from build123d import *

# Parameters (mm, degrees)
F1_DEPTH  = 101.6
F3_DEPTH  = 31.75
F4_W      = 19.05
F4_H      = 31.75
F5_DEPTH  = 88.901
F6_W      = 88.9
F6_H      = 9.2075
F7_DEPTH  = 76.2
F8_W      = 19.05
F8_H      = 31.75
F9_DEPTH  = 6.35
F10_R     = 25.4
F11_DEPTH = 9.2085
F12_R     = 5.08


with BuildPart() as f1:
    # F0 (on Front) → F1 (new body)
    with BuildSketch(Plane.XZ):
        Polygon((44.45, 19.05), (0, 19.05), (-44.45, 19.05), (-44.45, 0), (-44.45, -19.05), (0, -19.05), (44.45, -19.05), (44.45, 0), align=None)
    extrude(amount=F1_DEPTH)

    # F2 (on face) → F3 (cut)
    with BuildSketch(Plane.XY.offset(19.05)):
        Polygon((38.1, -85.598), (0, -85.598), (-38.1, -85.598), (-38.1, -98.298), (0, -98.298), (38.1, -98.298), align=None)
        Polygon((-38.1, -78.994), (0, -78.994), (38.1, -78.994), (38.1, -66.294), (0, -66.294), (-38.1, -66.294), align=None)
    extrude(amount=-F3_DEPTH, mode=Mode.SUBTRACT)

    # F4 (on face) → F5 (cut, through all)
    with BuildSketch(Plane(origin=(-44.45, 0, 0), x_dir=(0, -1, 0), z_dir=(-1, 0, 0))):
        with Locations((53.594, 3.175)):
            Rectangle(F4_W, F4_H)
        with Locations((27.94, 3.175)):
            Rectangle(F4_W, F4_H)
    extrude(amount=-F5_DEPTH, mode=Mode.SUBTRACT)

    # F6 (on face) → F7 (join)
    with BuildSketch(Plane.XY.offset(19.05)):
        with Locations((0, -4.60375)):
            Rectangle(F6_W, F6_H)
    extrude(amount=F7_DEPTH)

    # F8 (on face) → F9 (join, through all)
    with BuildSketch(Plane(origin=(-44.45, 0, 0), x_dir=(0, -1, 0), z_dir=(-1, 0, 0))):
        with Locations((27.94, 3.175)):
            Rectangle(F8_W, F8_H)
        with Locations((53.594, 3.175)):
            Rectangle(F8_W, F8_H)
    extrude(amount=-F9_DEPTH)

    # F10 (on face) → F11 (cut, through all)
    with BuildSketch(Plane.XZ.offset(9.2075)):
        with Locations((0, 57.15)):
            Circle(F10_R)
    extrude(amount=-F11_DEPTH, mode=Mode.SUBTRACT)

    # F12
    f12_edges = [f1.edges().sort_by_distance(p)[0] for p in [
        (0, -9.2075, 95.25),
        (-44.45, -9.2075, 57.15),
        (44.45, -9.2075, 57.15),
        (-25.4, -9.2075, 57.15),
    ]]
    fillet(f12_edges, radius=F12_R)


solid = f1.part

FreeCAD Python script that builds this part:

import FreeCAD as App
import Part
import Sketcher
Q = App.Units.Quantity


def edges_at(feature, points):
    """Names of the edges that pass closest to the given points."""
    edges = feature.Shape.Edges
    near = lambda p: min(range(len(edges)), key=lambda i: edges[i].distToShape(Part.Vertex(*p))[0])
    return sorted({f"Edge{near(p) + 1}" for p in points})

doc = App.newDocument("Part")
body = doc.addObject("PartDesign::Body", "Body")

# Sketch on XZ plane
sketch1 = body.newObject("Sketcher::SketchObject", "Sketch")
sketch1.AttachmentSupport = (doc.getObject("XZ_Plane"), [""])
sketch1.MapMode = "FlatFace"
sketch1.addGeometry([
    Part.LineSegment(App.Vector(44, 19, 0), App.Vector(-44, 19, 0)),
    Part.LineSegment(App.Vector(-44, 19, 0), App.Vector(-44, -19, 0)),
    Part.LineSegment(App.Vector(-44, -19, 0), App.Vector(44, -19, 0)),
    Part.LineSegment(App.Vector(44, -19, 0), App.Vector(44, 19, 0)),
], False)
sketch1.addConstraint([
    Sketcher.Constraint("Coincident", 0, 2, 1, 1),
    Sketcher.Constraint("Coincident", 1, 2, 2, 1),
    Sketcher.Constraint("Coincident", 2, 2, 3, 1),
    Sketcher.Constraint("Coincident", 3, 2, 0, 1),
    Sketcher.Constraint("Horizontal", 0),
    Sketcher.Constraint("Vertical", 1),
    Sketcher.Constraint("Horizontal", 2),
    Sketcher.Constraint("Vertical", 3),
    Sketcher.Constraint("Symmetric", 0, 2, 2, 2, -1, 1),
    Sketcher.Constraint("DistanceX", 0, 2, 0, 1, Q("3.5 in")),
    Sketcher.Constraint("DistanceY", 1, 2, 1, 1, Q("1.5 in")),
])
pad1 = body.newObject("PartDesign::Pad", "Pad")
pad1.Profile = sketch1
pad1.Length = Q("4 in")

# Sketch on XY plane
sketch2 = body.newObject("Sketcher::SketchObject", "Sketch001")
sketch2.AttachmentSupport = (doc.getObject("XY_Plane"), [""])
sketch2.MapMode = "FlatFace"
sketch2.AttachmentOffset = App.Placement(App.Vector(0, 0, 0.75 * 25.4), App.Rotation())
sketch2.addGeometry([
    Part.LineSegment(App.Vector(38, -86, 0), App.Vector(-38, -86, 0)),  # 0
    Part.LineSegment(App.Vector(-38, -86, 0), App.Vector(-38, -98, 0)),  # 1
    Part.LineSegment(App.Vector(-38, -98, 0), App.Vector(38, -98, 0)),  # 2
    Part.LineSegment(App.Vector(38, -98, 0), App.Vector(38, -86, 0)),  # 3
    Part.LineSegment(App.Vector(-38, -79, 0), App.Vector(38, -79, 0)),  # 4
    Part.LineSegment(App.Vector(38, -79, 0), App.Vector(38, -66, 0)),  # 5
    Part.LineSegment(App.Vector(38, -66, 0), App.Vector(-38, -66, 0)),  # 6
    Part.LineSegment(App.Vector(-38, -66, 0), App.Vector(-38, -79, 0)),  # 7
], False)
sketch2.addConstraint([
    Sketcher.Constraint("Coincident", 0, 2, 1, 1),
    Sketcher.Constraint("Coincident", 1, 2, 2, 1),
    Sketcher.Constraint("Coincident", 2, 2, 3, 1),
    Sketcher.Constraint("Coincident", 3, 2, 0, 1),
    Sketcher.Constraint("Coincident", 4, 2, 5, 1),
    Sketcher.Constraint("Coincident", 5, 2, 6, 1),
    Sketcher.Constraint("Coincident", 6, 2, 7, 1),
    Sketcher.Constraint("Coincident", 7, 2, 4, 1),
    Sketcher.Constraint("Horizontal", 0),
    Sketcher.Constraint("Vertical", 1),
    Sketcher.Constraint("Horizontal", 2),
    Sketcher.Constraint("Vertical", 3),
    Sketcher.Constraint("Horizontal", 4),
    Sketcher.Constraint("Vertical", 5),
    Sketcher.Constraint("Horizontal", 6),
    Sketcher.Constraint("Vertical", 7),
    Sketcher.Constraint("Vertical", 3, 2, 4, 2),
    Sketcher.Constraint("Vertical", 1, 2, 6, 2),
    Sketcher.Constraint("Equal", 3, 5),
    Sketcher.Constraint("DistanceX", 0, 2, 0, 1, Q("3 in")),
    Sketcher.Constraint("DistanceY", 1, 2, 1, 1, Q("0.5 in")),
    Sketcher.Constraint("DistanceX", 0, 2, -1, 1, Q("1.5 in")),
    Sketcher.Constraint("DistanceY", 0, 2, -1, 1, Q("3.37 in")),
    Sketcher.Constraint("DistanceY", 4, 2, -1, 1, Q("3.11 in")),
])
pocket1 = body.newObject("PartDesign::Pocket", "Pocket")
pocket1.Profile = sketch2
pocket1.Length = Q("1.25 in")

# Sketch on YZ plane
sketch3 = body.newObject("Sketcher::SketchObject", "Sketch002")
sketch3.AttachmentSupport = (doc.getObject("YZ_Plane"), [""])
sketch3.MapMode = "FlatFace"
sketch3.AttachmentOffset = App.Placement(App.Vector(0, 0, -1.75 * 25.4), App.Rotation())
sketch3.addGeometry([
    Part.LineSegment(App.Vector(-44, 19, 0), App.Vector(-44, -13, 0)),  # 0
    Part.LineSegment(App.Vector(-44, -13, 0), App.Vector(-63, -13, 0)),  # 1
    Part.LineSegment(App.Vector(-63, -13, 0), App.Vector(-63, 19, 0)),  # 2
    Part.LineSegment(App.Vector(-63, 19, 0), App.Vector(-44, 19, 0)),  # 3
    Part.LineSegment(App.Vector(-18, 19, 0), App.Vector(-18, -13, 0)),  # 4
    Part.LineSegment(App.Vector(-18, -13, 0), App.Vector(-37, -13, 0)),  # 5
    Part.LineSegment(App.Vector(-37, -13, 0), App.Vector(-37, 19, 0)),  # 6
    Part.LineSegment(App.Vector(-37, 19, 0), App.Vector(-18, 19, 0)),  # 7
], False)
sketch3.addConstraint([
    Sketcher.Constraint("Coincident", 0, 2, 1, 1),
    Sketcher.Constraint("Coincident", 1, 2, 2, 1),
    Sketcher.Constraint("Coincident", 2, 2, 3, 1),
    Sketcher.Constraint("Coincident", 3, 2, 0, 1),
    Sketcher.Constraint("Coincident", 4, 2, 5, 1),
    Sketcher.Constraint("Coincident", 5, 2, 6, 1),
    Sketcher.Constraint("Coincident", 6, 2, 7, 1),
    Sketcher.Constraint("Coincident", 7, 2, 4, 1),
    Sketcher.Constraint("Vertical", 0),
    Sketcher.Constraint("Horizontal", 1),
    Sketcher.Constraint("Vertical", 2),
    Sketcher.Constraint("Horizontal", 3),
    Sketcher.Constraint("Vertical", 4),
    Sketcher.Constraint("Horizontal", 5),
    Sketcher.Constraint("Vertical", 6),
    Sketcher.Constraint("Horizontal", 7),
    Sketcher.Constraint("Horizontal", 1, 2, 4, 2),
    Sketcher.Constraint("Horizontal", 3, 2, 6, 2),
    Sketcher.Constraint("Equal", 3, 5),
    Sketcher.Constraint("DistanceX", 1, 2, 1, 1, Q("0.75 in")),
    Sketcher.Constraint("DistanceY", 0, 2, 0, 1, Q("1.25 in")),
    Sketcher.Constraint("DistanceY", 0, 2, -1, 1, Q("0.5 in")),
    Sketcher.Constraint("DistanceX", 0, 2, 4, 2, Q("1.01 in")),
    Sketcher.Constraint("DistanceX", 0, 2, -1, 1, Q("1.735 in")),
])
pocket2 = body.newObject("PartDesign::Pocket", "Pocket001")
pocket2.Profile = sketch3
pocket2.Type = "ThroughAll"
pocket2.Reversed = True

# Sketch on XY plane
sketch4 = body.newObject("Sketcher::SketchObject", "Sketch003")
sketch4.AttachmentSupport = (doc.getObject("XY_Plane"), [""])
sketch4.MapMode = "FlatFace"
sketch4.AttachmentOffset = App.Placement(App.Vector(0, 0, 0.75 * 25.4), App.Rotation())
sketch4.addGeometry([
    Part.LineSegment(App.Vector(-44, 0, 0), App.Vector(-44, -9, 0)),
    Part.LineSegment(App.Vector(-44, -9, 0), App.Vector(44, -9, 0)),
    Part.LineSegment(App.Vector(44, -9, 0), App.Vector(44, 0, 0)),
    Part.LineSegment(App.Vector(44, 0, 0), App.Vector(-44, 0, 0)),
], False)
sketch4.addConstraint([
    Sketcher.Constraint("Coincident", 0, 2, 1, 1),
    Sketcher.Constraint("Coincident", 1, 2, 2, 1),
    Sketcher.Constraint("Coincident", 2, 2, 3, 1),
    Sketcher.Constraint("Coincident", 3, 2, 0, 1),
    Sketcher.Constraint("Vertical", 0),
    Sketcher.Constraint("Horizontal", 1),
    Sketcher.Constraint("Vertical", 2),
    Sketcher.Constraint("Horizontal", 3),
    Sketcher.Constraint("Symmetric", 2, 2, 3, 2, -1, 1),
    Sketcher.Constraint("DistanceX", 1, 1, 1, 2, Q("3.5 in")),
    Sketcher.Constraint("DistanceY", 0, 2, 0, 1, Q("0.3625 in")),
])
pad2 = body.newObject("PartDesign::Pad", "Pad001")
pad2.Profile = sketch4
pad2.Length = Q("3 in")

# Sketch on YZ plane
sketch5 = body.newObject("Sketcher::SketchObject", "Sketch004")
sketch5.AttachmentSupport = (doc.getObject("YZ_Plane"), [""])
sketch5.MapMode = "FlatFace"
sketch5.AttachmentOffset = App.Placement(App.Vector(0, 0, -1.75 * 25.4), App.Rotation())
sketch5.addGeometry([
    Part.LineSegment(App.Vector(-18, 19, 0), App.Vector(-18, -13, 0)),  # 0
    Part.LineSegment(App.Vector(-18, -13, 0), App.Vector(-37, -13, 0)),  # 1
    Part.LineSegment(App.Vector(-37, -13, 0), App.Vector(-37, 19, 0)),  # 2
    Part.LineSegment(App.Vector(-37, 19, 0), App.Vector(-18, 19, 0)),  # 3
    Part.LineSegment(App.Vector(-44, 19, 0), App.Vector(-44, -13, 0)),  # 4
    Part.LineSegment(App.Vector(-44, -13, 0), App.Vector(-63, -13, 0)),  # 5
    Part.LineSegment(App.Vector(-63, -13, 0), App.Vector(-63, 19, 0)),  # 6
    Part.LineSegment(App.Vector(-63, 19, 0), App.Vector(-44, 19, 0)),  # 7
], False)
sketch5.addConstraint([
    Sketcher.Constraint("Coincident", 0, 2, 1, 1),
    Sketcher.Constraint("Coincident", 1, 2, 2, 1),
    Sketcher.Constraint("Coincident", 2, 2, 3, 1),
    Sketcher.Constraint("Coincident", 3, 2, 0, 1),
    Sketcher.Constraint("Coincident", 4, 2, 5, 1),
    Sketcher.Constraint("Coincident", 5, 2, 6, 1),
    Sketcher.Constraint("Coincident", 6, 2, 7, 1),
    Sketcher.Constraint("Coincident", 7, 2, 4, 1),
    Sketcher.Constraint("Vertical", 0),
    Sketcher.Constraint("Horizontal", 1),
    Sketcher.Constraint("Vertical", 2),
    Sketcher.Constraint("Horizontal", 3),
    Sketcher.Constraint("Vertical", 4),
    Sketcher.Constraint("Horizontal", 5),
    Sketcher.Constraint("Vertical", 6),
    Sketcher.Constraint("Horizontal", 7),
    Sketcher.Constraint("Horizontal", 1, 2, 4, 2),
    Sketcher.Constraint("Horizontal", 3, 2, 6, 2),
    Sketcher.Constraint("Equal", 3, 5),
    Sketcher.Constraint("DistanceX", 1, 2, 1, 1, Q("0.75 in")),
    Sketcher.Constraint("DistanceY", 0, 2, 0, 1, Q("1.25 in")),
    Sketcher.Constraint("DistanceY", 0, 2, -1, 1, Q("0.5 in")),
    Sketcher.Constraint("DistanceX", 4, 2, 1, 2, Q("0.26 in")),
    Sketcher.Constraint("DistanceX", 0, 2, -1, 1, Q("0.725 in")),
])
pad3 = body.newObject("PartDesign::Pad", "Pad002")
pad3.Profile = sketch5
pad3.Length = Q("0.25 in")

# Sketch on XZ plane
sketch6 = body.newObject("Sketcher::SketchObject", "Sketch005")
sketch6.AttachmentSupport = (doc.getObject("XZ_Plane"), [""])
sketch6.MapMode = "FlatFace"
sketch6.AttachmentOffset = App.Placement(App.Vector(0, 0, 0.3625 * 25.4), App.Rotation())
sketch6.addGeometry(Part.Circle(App.Vector(0, 57, 0), App.Vector(0, 0, 1), 25), False)
sketch6.addConstraint([
    Sketcher.Constraint("PointOnObject", 0, 3, -2),
    Sketcher.Constraint("Diameter", 0, Q("2 in")),
    Sketcher.Constraint("DistanceY", -1, 1, 0, 3, Q("2.25 in")),
])
pocket3 = body.newObject("PartDesign::Pocket", "Pocket002")
pocket3.Profile = sketch6
pocket3.Type = "ThroughAll"
doc.recompute()

fillet = body.newObject("PartDesign::Fillet", "Fillet")
fillet.Base = (pocket3, edges_at(pocket3, [
    (0, -9.207, 95.25),
    (-44.45, -9.207, 57.15),
    (44.45, -9.207, 57.15),
    (-25.4, -9.207, 57.15),
]))
fillet.Radius = Q("0.2 in")

doc.recompute()
